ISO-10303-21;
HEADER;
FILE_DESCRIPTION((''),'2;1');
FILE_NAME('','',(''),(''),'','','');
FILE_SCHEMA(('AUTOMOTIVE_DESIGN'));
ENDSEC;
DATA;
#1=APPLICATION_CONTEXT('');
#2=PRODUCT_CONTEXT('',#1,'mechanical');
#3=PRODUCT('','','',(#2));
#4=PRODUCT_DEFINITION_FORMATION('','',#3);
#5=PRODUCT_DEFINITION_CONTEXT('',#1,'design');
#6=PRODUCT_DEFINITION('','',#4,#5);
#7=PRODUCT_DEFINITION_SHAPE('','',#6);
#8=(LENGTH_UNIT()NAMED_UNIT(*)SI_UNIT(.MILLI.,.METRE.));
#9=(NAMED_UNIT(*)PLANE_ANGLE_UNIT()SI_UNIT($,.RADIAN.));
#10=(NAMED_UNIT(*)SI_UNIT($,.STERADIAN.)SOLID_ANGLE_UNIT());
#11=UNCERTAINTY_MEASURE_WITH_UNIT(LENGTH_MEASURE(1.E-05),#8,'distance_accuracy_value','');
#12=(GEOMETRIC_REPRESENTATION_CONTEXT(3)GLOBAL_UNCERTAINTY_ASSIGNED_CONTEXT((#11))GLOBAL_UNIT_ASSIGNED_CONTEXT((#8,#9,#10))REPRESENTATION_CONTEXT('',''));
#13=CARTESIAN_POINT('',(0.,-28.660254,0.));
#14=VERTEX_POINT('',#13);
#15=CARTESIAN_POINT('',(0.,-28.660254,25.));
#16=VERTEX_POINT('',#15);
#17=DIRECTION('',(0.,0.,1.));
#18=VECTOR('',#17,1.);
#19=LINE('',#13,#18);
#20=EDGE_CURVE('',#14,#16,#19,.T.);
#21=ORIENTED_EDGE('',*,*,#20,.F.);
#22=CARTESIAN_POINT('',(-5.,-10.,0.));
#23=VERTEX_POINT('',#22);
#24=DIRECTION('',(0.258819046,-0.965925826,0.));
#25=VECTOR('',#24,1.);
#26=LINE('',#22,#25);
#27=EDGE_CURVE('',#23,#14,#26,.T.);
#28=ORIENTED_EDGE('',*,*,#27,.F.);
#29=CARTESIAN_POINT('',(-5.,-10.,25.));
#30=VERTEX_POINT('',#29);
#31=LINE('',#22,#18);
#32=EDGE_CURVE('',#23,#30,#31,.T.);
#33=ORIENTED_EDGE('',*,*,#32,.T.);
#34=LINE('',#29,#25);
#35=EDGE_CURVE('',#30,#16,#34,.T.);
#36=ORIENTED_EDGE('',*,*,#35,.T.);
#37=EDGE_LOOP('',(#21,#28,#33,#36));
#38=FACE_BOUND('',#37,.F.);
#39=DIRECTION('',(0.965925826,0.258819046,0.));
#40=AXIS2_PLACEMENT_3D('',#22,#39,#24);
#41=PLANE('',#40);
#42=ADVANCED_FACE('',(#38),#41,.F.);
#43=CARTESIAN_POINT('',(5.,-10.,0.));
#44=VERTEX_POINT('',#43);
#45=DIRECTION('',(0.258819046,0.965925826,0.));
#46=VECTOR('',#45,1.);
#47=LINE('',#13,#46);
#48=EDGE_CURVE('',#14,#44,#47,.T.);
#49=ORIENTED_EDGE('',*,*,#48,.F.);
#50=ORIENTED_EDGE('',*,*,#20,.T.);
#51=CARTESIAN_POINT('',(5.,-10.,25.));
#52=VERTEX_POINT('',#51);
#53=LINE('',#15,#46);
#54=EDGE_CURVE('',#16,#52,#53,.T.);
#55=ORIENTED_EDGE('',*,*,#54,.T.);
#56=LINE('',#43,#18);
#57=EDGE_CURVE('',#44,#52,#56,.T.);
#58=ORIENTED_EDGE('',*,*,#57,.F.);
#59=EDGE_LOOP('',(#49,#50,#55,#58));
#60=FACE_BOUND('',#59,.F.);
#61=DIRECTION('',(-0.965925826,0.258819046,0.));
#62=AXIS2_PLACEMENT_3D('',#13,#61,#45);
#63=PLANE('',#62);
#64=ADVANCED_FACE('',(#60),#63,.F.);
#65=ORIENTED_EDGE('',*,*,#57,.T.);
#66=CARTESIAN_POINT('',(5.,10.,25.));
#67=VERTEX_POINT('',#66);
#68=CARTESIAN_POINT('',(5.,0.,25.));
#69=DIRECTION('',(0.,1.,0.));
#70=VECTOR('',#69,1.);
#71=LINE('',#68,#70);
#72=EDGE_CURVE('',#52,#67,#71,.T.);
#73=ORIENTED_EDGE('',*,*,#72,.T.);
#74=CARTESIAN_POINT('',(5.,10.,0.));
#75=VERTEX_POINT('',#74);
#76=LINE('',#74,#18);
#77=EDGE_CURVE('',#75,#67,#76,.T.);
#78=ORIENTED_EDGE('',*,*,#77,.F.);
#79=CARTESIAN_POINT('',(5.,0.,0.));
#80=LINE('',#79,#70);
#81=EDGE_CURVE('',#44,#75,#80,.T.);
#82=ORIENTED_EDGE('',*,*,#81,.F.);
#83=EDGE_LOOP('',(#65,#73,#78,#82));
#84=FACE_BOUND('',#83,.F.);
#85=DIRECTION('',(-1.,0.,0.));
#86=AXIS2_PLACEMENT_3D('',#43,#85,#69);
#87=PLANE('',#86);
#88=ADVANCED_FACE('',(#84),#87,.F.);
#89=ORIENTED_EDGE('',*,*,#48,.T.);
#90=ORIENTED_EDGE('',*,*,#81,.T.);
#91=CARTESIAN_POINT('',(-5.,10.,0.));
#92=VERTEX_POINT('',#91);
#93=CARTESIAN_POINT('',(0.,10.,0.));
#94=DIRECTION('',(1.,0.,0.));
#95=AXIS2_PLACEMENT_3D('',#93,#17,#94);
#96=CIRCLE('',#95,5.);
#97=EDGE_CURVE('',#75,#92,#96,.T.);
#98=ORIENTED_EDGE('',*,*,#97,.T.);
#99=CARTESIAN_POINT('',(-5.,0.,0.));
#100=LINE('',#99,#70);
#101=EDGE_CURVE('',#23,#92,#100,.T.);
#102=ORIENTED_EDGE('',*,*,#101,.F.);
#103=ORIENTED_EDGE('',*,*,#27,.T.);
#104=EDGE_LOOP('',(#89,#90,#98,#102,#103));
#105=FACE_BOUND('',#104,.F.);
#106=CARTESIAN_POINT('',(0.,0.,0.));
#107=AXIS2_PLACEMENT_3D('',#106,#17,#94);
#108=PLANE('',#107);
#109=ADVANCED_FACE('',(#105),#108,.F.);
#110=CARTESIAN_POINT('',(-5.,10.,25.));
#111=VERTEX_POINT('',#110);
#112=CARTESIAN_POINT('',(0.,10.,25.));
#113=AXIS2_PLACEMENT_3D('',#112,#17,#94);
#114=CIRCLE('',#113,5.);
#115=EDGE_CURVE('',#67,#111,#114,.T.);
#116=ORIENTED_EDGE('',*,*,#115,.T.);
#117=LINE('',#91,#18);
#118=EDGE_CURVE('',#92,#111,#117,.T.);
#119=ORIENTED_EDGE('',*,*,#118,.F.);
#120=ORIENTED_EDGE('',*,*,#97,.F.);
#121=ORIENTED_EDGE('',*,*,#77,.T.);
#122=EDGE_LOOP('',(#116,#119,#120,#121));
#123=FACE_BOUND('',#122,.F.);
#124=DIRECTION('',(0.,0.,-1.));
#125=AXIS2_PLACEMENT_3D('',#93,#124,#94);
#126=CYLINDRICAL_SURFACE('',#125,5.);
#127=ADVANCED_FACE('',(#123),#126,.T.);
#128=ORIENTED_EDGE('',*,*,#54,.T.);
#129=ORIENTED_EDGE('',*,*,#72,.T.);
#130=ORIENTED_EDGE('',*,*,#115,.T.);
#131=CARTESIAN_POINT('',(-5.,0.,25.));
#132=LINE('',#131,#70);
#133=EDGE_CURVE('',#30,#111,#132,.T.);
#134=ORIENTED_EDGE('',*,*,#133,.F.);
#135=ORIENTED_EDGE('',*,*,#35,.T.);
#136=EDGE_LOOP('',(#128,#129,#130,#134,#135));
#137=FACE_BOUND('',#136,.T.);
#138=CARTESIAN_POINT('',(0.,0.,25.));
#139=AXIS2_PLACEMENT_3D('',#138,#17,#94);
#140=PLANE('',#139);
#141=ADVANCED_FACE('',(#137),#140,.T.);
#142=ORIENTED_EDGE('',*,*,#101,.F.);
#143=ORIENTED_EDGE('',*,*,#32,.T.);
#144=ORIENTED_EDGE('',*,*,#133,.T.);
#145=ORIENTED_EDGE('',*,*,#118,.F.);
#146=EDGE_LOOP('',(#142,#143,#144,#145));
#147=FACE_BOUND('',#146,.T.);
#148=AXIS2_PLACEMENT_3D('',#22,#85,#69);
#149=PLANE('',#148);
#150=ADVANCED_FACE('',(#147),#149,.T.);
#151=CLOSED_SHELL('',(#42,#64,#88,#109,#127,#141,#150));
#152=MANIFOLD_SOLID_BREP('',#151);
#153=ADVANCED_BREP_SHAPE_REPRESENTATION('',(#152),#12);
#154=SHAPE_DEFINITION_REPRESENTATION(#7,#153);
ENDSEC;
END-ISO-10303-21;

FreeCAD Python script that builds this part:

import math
import FreeCAD as App
import Part
import Sketcher
from FreeCAD import Vector
Q = App.Units.Quantity

doc = App.newDocument("Part")
body = doc.addObject("PartDesign::Body", "Body")

sketch1 = body.newObject("Sketcher::SketchObject", "Sketch")
sketch1.AttachmentSupport = (doc.getObject("XY_Plane"), [""])
sketch1.MapMode = "FlatFace"
sketch1.addGeometry([
    Part.LineSegment(Vector(-5, 10, 0), Vector(-5, -10, 0)),
    Part.LineSegment(Vector(-5, -10, 0), Vector(0, -29, 0)),
    Part.LineSegment(Vector(0, -29, 0), Vector(5, -10, 0)),
    Part.LineSegment(Vector(5, -10, 0), Vector(5, 10, 0)),
    Part.ArcOfCircle(Part.Circle(Vector(0, 10, 0), Vector(0, 0, 1), 5), math.radians(0), math.radians(180)),
], False)
sketch1.addConstraint([
    Sketcher.Constraint("Coincident", 0, 2, 1, 1),
    Sketcher.Constraint("Coincident", 1, 2, 2, 1),
    Sketcher.Constraint("Coincident", 2, 2, 3, 1),
    Sketcher.Constraint("Tangent", 3, 2, 4, 1),
    Sketcher.Constraint("Tangent", 4, 2, 0, 1),
    Sketcher.Constraint("Vertical", 0),
    Sketcher.Constraint("Vertical", 3),
    Sketcher.Constraint("Symmetric", 0, 2, 3, 2, -1, 1),
    Sketcher.Constraint("PointOnObject", 1, 2, -2),
    Sketcher.Constraint("Horizontal", 0, 2, 2, 2),
    Sketcher.Constraint("Radius", 4, 5.0),
    Sketcher.Constraint("DistanceY", 0, 2, 0, 1, 20.0),
    Sketcher.Constraint("Angle", 1, Q("-75 deg")),
])
pad1 = body.newObject("PartDesign::Pad", "Pad")
pad1.Profile = sketch1
pad1.Length = 25

doc.recompute()
